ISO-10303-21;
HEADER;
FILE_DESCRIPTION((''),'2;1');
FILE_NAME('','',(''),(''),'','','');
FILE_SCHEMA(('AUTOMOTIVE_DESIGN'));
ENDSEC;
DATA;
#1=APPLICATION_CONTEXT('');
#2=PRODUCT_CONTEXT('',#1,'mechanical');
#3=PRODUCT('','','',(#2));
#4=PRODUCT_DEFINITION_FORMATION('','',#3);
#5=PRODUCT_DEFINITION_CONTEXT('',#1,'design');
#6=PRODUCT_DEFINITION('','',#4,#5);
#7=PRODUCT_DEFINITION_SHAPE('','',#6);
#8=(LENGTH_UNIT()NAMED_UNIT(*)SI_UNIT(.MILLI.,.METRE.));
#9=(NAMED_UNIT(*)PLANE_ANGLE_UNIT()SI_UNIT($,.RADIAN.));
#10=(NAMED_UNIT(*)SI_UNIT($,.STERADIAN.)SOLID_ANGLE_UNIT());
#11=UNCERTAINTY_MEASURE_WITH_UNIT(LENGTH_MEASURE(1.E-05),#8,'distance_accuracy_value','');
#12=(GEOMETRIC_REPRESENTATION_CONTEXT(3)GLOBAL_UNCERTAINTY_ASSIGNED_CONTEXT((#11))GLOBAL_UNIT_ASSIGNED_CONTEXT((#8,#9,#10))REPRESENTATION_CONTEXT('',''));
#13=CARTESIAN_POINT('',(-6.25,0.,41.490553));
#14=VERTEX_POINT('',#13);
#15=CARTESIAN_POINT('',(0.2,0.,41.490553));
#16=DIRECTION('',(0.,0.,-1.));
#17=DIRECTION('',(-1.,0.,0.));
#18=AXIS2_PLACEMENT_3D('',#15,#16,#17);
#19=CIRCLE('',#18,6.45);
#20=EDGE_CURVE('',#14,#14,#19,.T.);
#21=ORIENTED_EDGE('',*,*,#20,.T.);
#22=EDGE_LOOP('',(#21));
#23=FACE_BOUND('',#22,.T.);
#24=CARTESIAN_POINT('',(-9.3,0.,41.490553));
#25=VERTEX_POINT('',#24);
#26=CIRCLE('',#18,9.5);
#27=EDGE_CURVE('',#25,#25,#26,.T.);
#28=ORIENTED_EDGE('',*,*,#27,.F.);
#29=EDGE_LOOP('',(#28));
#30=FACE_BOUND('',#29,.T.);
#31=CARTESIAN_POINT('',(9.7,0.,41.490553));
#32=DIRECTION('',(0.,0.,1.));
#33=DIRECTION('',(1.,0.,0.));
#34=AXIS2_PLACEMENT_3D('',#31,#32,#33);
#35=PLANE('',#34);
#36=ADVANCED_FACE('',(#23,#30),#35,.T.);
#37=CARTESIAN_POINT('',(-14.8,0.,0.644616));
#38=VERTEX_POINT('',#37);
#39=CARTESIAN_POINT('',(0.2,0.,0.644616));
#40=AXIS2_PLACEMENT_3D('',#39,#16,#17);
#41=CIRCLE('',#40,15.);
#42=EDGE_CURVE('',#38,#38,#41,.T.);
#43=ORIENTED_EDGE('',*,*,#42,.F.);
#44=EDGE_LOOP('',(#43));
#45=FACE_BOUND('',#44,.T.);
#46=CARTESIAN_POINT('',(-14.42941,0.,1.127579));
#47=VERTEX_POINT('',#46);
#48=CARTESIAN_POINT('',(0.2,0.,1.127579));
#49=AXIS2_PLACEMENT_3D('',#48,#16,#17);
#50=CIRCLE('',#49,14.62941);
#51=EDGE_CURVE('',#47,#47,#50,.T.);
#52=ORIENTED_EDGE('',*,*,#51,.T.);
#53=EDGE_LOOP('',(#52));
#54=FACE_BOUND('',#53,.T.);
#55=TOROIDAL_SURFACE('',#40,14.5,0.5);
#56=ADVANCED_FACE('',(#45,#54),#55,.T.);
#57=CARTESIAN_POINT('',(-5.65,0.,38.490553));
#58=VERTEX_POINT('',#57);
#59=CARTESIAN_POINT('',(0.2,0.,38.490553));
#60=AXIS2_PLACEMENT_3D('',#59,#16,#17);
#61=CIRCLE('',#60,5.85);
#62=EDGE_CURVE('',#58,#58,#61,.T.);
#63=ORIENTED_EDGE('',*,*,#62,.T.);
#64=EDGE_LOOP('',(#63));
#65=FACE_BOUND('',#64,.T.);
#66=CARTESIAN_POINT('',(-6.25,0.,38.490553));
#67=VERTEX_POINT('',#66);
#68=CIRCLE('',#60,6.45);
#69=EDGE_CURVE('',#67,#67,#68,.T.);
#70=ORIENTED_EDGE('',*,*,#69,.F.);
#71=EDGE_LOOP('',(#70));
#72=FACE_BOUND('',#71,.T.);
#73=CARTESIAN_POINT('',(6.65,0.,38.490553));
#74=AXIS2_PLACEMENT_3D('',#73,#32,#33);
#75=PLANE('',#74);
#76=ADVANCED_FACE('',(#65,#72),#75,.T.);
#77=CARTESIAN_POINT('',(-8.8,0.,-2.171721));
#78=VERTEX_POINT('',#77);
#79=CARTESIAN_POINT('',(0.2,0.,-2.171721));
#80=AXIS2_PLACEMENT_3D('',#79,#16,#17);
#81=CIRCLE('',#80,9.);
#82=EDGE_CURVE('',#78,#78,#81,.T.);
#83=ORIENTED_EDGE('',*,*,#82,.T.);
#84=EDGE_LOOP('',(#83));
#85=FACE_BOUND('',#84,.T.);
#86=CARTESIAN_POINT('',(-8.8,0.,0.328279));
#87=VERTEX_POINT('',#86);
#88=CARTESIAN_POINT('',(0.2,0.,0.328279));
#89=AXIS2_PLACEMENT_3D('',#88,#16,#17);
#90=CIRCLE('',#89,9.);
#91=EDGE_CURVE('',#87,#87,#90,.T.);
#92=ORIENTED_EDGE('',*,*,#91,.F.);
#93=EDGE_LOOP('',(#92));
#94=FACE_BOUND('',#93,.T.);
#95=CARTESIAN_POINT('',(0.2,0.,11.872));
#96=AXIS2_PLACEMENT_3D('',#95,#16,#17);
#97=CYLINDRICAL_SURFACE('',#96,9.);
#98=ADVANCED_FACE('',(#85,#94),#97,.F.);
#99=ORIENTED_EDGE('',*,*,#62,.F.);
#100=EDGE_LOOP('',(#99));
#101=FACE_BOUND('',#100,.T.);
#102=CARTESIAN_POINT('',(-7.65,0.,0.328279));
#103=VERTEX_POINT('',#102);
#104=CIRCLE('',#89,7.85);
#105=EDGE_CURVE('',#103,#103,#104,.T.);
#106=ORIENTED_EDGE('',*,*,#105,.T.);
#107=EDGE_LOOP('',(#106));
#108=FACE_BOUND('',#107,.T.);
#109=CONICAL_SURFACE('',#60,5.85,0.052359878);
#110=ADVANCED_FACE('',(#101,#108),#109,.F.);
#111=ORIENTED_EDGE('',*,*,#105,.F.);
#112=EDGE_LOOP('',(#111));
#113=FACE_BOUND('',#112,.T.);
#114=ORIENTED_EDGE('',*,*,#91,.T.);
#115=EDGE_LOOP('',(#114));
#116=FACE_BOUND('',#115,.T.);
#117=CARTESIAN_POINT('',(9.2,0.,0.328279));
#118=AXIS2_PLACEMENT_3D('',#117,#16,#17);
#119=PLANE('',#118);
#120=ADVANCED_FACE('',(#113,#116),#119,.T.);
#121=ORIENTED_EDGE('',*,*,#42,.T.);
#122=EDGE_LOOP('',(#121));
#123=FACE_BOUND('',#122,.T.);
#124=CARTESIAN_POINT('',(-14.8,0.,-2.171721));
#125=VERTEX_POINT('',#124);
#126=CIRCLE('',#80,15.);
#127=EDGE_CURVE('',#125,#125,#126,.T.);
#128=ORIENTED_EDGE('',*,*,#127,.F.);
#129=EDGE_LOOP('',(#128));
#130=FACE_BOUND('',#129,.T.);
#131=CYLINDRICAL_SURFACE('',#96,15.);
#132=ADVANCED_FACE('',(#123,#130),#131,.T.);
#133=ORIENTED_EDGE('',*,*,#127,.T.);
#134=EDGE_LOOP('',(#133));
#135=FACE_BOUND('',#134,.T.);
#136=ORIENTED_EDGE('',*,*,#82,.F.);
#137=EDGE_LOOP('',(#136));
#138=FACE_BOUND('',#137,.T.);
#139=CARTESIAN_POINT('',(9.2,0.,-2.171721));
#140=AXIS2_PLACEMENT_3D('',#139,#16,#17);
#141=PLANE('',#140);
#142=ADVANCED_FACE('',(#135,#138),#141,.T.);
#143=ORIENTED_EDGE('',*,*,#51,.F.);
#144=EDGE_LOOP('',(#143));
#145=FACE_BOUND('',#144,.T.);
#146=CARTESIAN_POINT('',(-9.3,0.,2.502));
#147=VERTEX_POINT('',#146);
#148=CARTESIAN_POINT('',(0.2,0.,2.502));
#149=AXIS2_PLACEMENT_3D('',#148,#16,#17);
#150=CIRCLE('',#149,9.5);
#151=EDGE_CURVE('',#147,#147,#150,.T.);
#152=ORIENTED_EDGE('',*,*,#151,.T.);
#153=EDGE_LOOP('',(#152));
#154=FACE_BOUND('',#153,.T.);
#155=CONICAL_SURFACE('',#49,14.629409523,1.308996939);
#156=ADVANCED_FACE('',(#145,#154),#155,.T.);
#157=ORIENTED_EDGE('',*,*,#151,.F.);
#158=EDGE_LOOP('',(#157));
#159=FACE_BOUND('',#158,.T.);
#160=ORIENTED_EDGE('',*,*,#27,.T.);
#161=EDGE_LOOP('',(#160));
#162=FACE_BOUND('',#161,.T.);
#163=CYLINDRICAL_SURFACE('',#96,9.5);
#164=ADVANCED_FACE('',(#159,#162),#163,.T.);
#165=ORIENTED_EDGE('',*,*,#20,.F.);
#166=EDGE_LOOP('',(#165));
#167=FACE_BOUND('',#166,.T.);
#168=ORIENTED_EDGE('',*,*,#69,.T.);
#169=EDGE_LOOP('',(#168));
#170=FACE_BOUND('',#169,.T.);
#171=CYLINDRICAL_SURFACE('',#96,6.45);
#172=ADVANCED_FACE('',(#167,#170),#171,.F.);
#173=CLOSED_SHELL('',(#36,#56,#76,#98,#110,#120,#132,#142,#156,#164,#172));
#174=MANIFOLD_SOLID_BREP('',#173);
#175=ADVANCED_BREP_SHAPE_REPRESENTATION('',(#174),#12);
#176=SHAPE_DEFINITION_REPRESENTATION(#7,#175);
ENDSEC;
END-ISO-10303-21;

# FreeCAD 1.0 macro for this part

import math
import FreeCAD as App
import Part
import Sketcher
Q = App.Units.Quantity

doc = App.newDocument("Part")
body = doc.addObject("PartDesign::Body", "Body")

sketch1 = doc.addObject("Sketcher::SketchObject", "Sketch")
body.addObject(sketch1)
sketch1.AttachmentSupport = (doc.XZ_Plane, [""])
sketch1.MapMode = "FlatFace"
sketch1.addGeometry([
    Part.LineSegment(App.Vector(9.7, 2.502, 0), App.Vector(9.7, 41.490553, 0)),
    Part.LineSegment(App.Vector(9.7, 41.490553, 0), App.Vector(6.65, 41.490553, 0)),
    Part.LineSegment(App.Vector(6.65, 41.490553, 0), App.Vector(6.65, 38.490553, 0)),
    Part.LineSegment(App.Vector(6.65, 38.490553, 0), App.Vector(6.05, 38.490553, 0)),
    Part.LineSegment(App.Vector(6.05, 38.490553, 0), App.Vector(8.05, 0.328279, 0)),
    Part.LineSegment(App.Vector(8.05, 0.328279, 0), App.Vector(9.2, 0.328279, 0)),
    Part.LineSegment(App.Vector(9.2, 0.328279, 0), App.Vector(9.2, -2.171721, 0)),
    Part.LineSegment(App.Vector(9.2, -2.171721, 0), App.Vector(15.2, -2.171721, 0)),
    Part.LineSegment(App.Vector(15.2, -2.171721, 0), App.Vector(15.2, 0.644616, 0)),
    Part.ArcOfCircle(Part.Circle(App.Vector(14.7, 0.644616, 0), App.Vector(0, 0, 1), 0.5), math.radians(0), math.radians(75)),
    Part.LineSegment(App.Vector(14.82941, 1.127579, 0), App.Vector(9.7, 2.502, 0)),
], False)
sketch1.addGeometry(Part.LineSegment(App.Vector(0.2, 41.490553, 0), App.Vector(0.2, -2.171721, 0)), True)
sketch1.addConstraint([
    Sketcher.Constraint("Coincident", 0, 2, 1, 1),
    Sketcher.Constraint("Coincident", 1, 2, 2, 1),
    Sketcher.Constraint("Coincident", 2, 2, 3, 1),
    Sketcher.Constraint("Coincident", 3, 2, 4, 1),
    Sketcher.Constraint("Coincident", 4, 2, 5, 1),
    Sketcher.Constraint("Coincident", 5, 2, 6, 1),
    Sketcher.Constraint("Coincident", 6, 2, 7, 1),
    Sketcher.Constraint("Coincident", 7, 2, 8, 1),
    Sketcher.Constraint("Tangent", 8, 2, 9, 1),
    Sketcher.Constraint("Tangent", 9, 2, 10, 1),
    Sketcher.Constraint("Coincident", 10, 2, 0, 1),
    Sketcher.Constraint("Vertical", 0),
    Sketcher.Constraint("Horizontal", 1),
    Sketcher.Constraint("Vertical", 2),
    Sketcher.Constraint("Horizontal", 3),
    Sketcher.Constraint("Horizontal", 5),
    Sketcher.Constraint("Vertical", 6),
    Sketcher.Constraint("Horizontal", 7),
    Sketcher.Constraint("Vertical", 8),
    Sketcher.Constraint("Vertical", 11),
    Sketcher.Constraint("Horizontal", 1, 2, 11, 1),
    Sketcher.Constraint("Horizontal", 7, 2, 11, 2),
    Sketcher.Constraint("Radius", 9, Q("0.5 mm")),
    Sketcher.Constraint("DistanceX", 7, 1, 7, 2, Q("6 mm")),
    Sketcher.Constraint("DistanceY", 2, 2, 2, 1, Q("3 mm")),
    Sketcher.Constraint("Angle", 4, Q("-87 deg")),
    Sketcher.Constraint("Angle", 10, Q("165 deg")),
    Sketcher.Constraint("DistanceX", 3, 2, 3, 1, Q("0.6 mm")),
    Sketcher.Constraint("DistanceY", 6, 2, 6, 1, Q("2.5 mm")),
    Sketcher.Constraint("DistanceX", 0, 2, 9, 3, Q("5 mm")),
    Sketcher.Constraint("DistanceX", 3, 2, 4, 2, Q("2 mm")),
    Sketcher.Constraint("DistanceX", 11, 2, 6, 2, Q("9 mm")),
    Sketcher.Constraint("DistanceX", 1, 2, 1, 1, Q("3.05 mm")),
    Sketcher.Constraint("DistanceX", -1, 1, 9, 3, Q("14.7 mm")),
    Sketcher.Constraint("DistanceY", -1, 1, 10, 2, Q("2.502 mm")),
    Sketcher.Constraint("DistanceY", 7, 2, 9, 2, Q("3.299299 mm")),
])
revolution = doc.addObject("PartDesign::Revolution", "Revolution")
body.addObject(revolution)
revolution.Profile = sketch1
revolution.ReferenceAxis = (sketch1, ["Axis0"])
revolution.Angle = 360

doc.recompute()
